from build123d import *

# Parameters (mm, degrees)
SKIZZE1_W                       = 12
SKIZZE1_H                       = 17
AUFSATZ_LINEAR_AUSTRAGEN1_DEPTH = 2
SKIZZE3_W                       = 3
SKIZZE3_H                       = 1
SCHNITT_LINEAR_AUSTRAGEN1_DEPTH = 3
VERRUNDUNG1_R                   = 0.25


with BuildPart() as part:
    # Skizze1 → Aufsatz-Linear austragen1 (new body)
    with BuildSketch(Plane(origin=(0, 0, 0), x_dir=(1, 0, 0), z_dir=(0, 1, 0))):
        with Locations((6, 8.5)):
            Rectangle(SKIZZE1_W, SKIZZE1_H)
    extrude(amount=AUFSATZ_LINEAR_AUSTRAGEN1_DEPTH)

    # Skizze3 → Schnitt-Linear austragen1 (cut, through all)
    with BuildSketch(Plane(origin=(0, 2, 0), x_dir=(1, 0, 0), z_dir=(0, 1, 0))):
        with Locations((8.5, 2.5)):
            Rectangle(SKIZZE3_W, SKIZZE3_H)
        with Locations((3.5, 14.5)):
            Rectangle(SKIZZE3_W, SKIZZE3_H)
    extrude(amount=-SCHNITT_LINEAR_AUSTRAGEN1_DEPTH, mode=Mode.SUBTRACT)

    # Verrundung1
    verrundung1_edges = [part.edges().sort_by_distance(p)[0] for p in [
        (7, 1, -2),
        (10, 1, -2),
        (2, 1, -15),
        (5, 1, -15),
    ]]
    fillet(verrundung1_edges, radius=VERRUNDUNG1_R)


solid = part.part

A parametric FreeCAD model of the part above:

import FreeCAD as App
import Part
import Sketcher
Q = App.Units.Quantity


def edges_at(feature, points):
    """Names of the edges that pass closest to the given points."""
    edges = feature.Shape.Edges
    near = lambda p: min(range(len(edges)), key=lambda i: edges[i].distToShape(Part.Vertex(*p))[0])
    return sorted({f"Edge{near(p) + 1}" for p in points})

doc = App.newDocument("Part")
params = doc.addObject("Spreadsheet::Sheet", "Params")
for row, (alias, value) in enumerate([
    ("sketch1_width", "12 mm"),
    ("sketch1_height", "17 mm"),
    ("pad1_length", "2 mm"),
    ("sketch2_width", "3 mm"),
    ("sketch2_height", "1 mm"),
    ("fillet_radius", "0.25 mm"),
], start=1):
    params.set(f"A{row}", alias)
    params.set(f"B{row}", "=" + value)
    params.setAlias(f"B{row}", alias)

body = doc.addObject("PartDesign::Body", "Body")

# Sketch on XZ plane
sketch1 = body.newObject("Sketcher::SketchObject", "Sketch")
sketch1.AttachmentSupport = (doc.getObject("XZ_Plane"), [""])
sketch1.MapMode = "FlatFace"
sketch1.addGeometry([
    Part.LineSegment(App.Vector(0, -17, 0), App.Vector(0, 0, 0)),
    Part.LineSegment(App.Vector(0, 0, 0), App.Vector(12, 0, 0)),
    Part.LineSegment(App.Vector(12, 0, 0), App.Vector(12, -17, 0)),
    Part.LineSegment(App.Vector(12, -17, 0), App.Vector(0, -17, 0)),
], False)
sketch1.addConstraint([
    Sketcher.Constraint("Coincident", 0, 2, 1, 1),
    Sketcher.Constraint("Coincident", 1, 2, 2, 1),
    Sketcher.Constraint("Coincident", 2, 2, 3, 1),
    Sketcher.Constraint("Coincident", 3, 2, 0, 1),
    Sketcher.Constraint("Vertical", 0),
    Sketcher.Constraint("Horizontal", 1),
    Sketcher.Constraint("Vertical", 2),
    Sketcher.Constraint("Horizontal", 3),
    Sketcher.Constraint("Coincident", 0, 2, -1, 1),
    Sketcher.Constraint("DistanceX", 1, 1, 1, 2, Q("12 mm")),
    Sketcher.Constraint("DistanceY", 0, 1, 0, 2, Q("17 mm")),
])
sketch1.setExpression("Constraints[9]", "Params.sketch1_width")
sketch1.setExpression("Constraints[10]", "Params.sketch1_height")
pad1 = body.newObject("PartDesign::Pad", "Pad")
pad1.Profile = sketch1
pad1.setExpression("Length", "Params.pad1_length")
pad1.Reversed = True

# Sketch on XZ plane
sketch2 = body.newObject("Sketcher::SketchObject", "Sketch001")
sketch2.AttachmentSupport = (doc.getObject("XZ_Plane"), [""])
sketch2.MapMode = "FlatFace"
sketch2.AttachmentOffset = App.Placement(App.Vector(0, 0, -2), App.Rotation())
sketch2.addGeometry([
    Part.LineSegment(App.Vector(7, -3, 0), App.Vector(7, -2, 0)),  # 0
    Part.LineSegment(App.Vector(7, -2, 0), App.Vector(10, -2, 0)),  # 1
    Part.LineSegment(App.Vector(10, -2, 0), App.Vector(10, -3, 0)),  # 2
    Part.LineSegment(App.Vector(10, -3, 0), App.Vector(7, -3, 0)),  # 3
    Part.LineSegment(App.Vector(2, -15, 0), App.Vector(2, -14, 0)),  # 4
    Part.LineSegment(App.Vector(2, -14, 0), App.Vector(5, -14, 0)),  # 5
    Part.LineSegment(App.Vector(5, -14, 0), App.Vector(5, -15, 0)),  # 6
    Part.LineSegment(App.Vector(5, -15, 0), App.Vector(2, -15, 0)),  # 7
], False)
sketch2.addConstraint([
    Sketcher.Constraint("Coincident", 0, 2, 1, 1),
    Sketcher.Constraint("Coincident", 1, 2, 2, 1),
    Sketcher.Constraint("Coincident", 2, 2, 3, 1),
    Sketcher.Constraint("Coincident", 3, 2, 0, 1),
    Sketcher.Constraint("Coincident", 4, 2, 5, 1),
    Sketcher.Constraint("Coincident", 5, 2, 6, 1),
    Sketcher.Constraint("Coincident", 6, 2, 7, 1),
    Sketcher.Constraint("Coincident", 7, 2, 4, 1),
    Sketcher.Constraint("Vertical", 0),
    Sketcher.Constraint("Horizontal", 1),
    Sketcher.Constraint("Vertical", 2),
    Sketcher.Constraint("Horizontal", 3),
    Sketcher.Constraint("Vertical", 4),
    Sketcher.Constraint("Horizontal", 5),
    Sketcher.Constraint("Vertical", 6),
    Sketcher.Constraint("Horizontal", 7),
    Sketcher.Constraint("Equal", 3, 5),
    Sketcher.Constraint("Equal", 2, 4),
    Sketcher.Constraint("DistanceX", 1, 1, 1, 2, Q("3 mm")),
    Sketcher.Constraint("DistanceY", 0, 1, 0, 2, Q("1 mm")),
    Sketcher.Constraint("DistanceX", -1, 1, 0, 2, Q("7 mm")),
    Sketcher.Constraint("DistanceY", 0, 2, -1, 1, Q("2 mm")),
    Sketcher.Constraint("DistanceX", -1, 1, 4, 2, Q("2 mm")),
    Sketcher.Constraint("DistanceY", 4, 2, -1, 1, Q("14 mm")),
])
sketch2.setExpression("Constraints[18]", "Params.sketch2_width")
sketch2.setExpression("Constraints[19]", "Params.sketch2_height")
pocket1 = body.newObject("PartDesign::Pocket", "Pocket")
pocket1.Profile = sketch2
pocket1.Type = "ThroughAll"
pocket1.Reversed = True
doc.recompute()

fillet = body.newObject("PartDesign::Fillet", "Fillet")
fillet.Base = (pocket1, edges_at(pocket1, [
    (7, 1, -2),
    (10, 1, -2),
    (2, 1, -15),
    (5, 1, -15),
]))
fillet.setExpression("Radius", "Params.fillet_radius")

doc.recompute()
